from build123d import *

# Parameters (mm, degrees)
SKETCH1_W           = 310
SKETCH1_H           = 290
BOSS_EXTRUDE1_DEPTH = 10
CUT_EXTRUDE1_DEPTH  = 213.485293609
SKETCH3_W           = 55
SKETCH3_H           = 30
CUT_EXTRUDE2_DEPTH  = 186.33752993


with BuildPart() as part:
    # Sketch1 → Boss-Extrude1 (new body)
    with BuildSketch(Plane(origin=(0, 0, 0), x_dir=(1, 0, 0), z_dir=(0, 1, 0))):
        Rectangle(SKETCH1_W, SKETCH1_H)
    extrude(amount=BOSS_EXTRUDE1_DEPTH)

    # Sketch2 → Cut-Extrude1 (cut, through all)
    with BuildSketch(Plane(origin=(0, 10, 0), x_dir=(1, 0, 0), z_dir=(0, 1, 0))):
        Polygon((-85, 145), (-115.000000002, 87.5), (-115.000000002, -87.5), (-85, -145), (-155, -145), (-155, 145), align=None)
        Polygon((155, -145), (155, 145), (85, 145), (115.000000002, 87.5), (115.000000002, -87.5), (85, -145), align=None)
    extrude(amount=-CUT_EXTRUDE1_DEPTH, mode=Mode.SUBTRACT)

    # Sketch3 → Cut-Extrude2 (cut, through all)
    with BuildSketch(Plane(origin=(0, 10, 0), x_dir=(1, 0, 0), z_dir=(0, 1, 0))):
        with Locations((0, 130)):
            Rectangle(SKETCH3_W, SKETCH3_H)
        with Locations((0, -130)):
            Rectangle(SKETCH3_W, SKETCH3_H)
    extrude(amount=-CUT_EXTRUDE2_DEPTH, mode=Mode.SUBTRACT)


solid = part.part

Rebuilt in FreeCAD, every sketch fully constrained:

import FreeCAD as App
import Part
import Sketcher
Q = App.Units.Quantity


def add_polygon(sketch, points):
    """Adds a closed chain of lines whose ends are joined by coincident constraints."""
    first, n = sketch.GeometryCount, len(points)
    for a, b in zip(points, points[1:] + points[:1]):
        sketch.addGeometry(Part.LineSegment(App.Vector(*a, 0), App.Vector(*b, 0)), False)
    for i in range(n):
        sketch.addConstraint(Sketcher.Constraint("Coincident", first + i, 2, first + (i + 1) % n, 1))

doc = App.newDocument("Part")
params = doc.addObject("Spreadsheet::Sheet", "Params")
for row, (alias, value) in enumerate([
    ("sketch1_width", "310 mm"),
    ("sketch1_height", "290 mm"),
    ("pad1_length", "10 mm"),
    ("sketch2_width", "70 mm"),
    ("sketch2_height", "290 mm"),
    ("sketch2_height2", "175 mm"),
    ("sketch3_width", "55 mm"),
    ("sketch3_height", "30 mm"),
], start=1):
    params.set(f"A{row}", alias)
    params.set(f"B{row}", "=" + value)
    params.setAlias(f"B{row}", alias)

body = doc.addObject("PartDesign::Body", "Body")

# Sketch on XZ plane
sketch1 = doc.addObject("Sketcher::SketchObject", "Sketch")
body.addObject(sketch1)
sketch1.AttachmentSupport = (doc.XZ_Plane, [""])
sketch1.MapMode = "FlatFace"
add_polygon(sketch1, [(-155, -145), (-155, 145), (155, 145), (155, -145)])  # lines 0-3
sketch1.addConstraint(Sketcher.Constraint("Vertical", 0))
sketch1.addConstraint(Sketcher.Constraint("Horizontal", 1))
sketch1.addConstraint(Sketcher.Constraint("Vertical", 2))
sketch1.addConstraint(Sketcher.Constraint("Horizontal", 3))
sketch1.addConstraint(Sketcher.Constraint("Symmetric", 0, 2, 2, 2, -1, 1))
sketch1.addConstraint(Sketcher.Constraint("DistanceX", 1, 1, 1, 2, Q("310 mm")))
sketch1.addConstraint(Sketcher.Constraint("DistanceY", 0, 1, 0, 2, Q("290 mm")))
sketch1.setExpression("Constraints[9]", "Params.sketch1_width")
sketch1.setExpression("Constraints[10]", "Params.sketch1_height")
pad1 = doc.addObject("PartDesign::Pad", "Pad")
body.addObject(pad1)
pad1.Profile = sketch1
pad1.setExpression("Length", "Params.pad1_length")
pad1.Reversed = True

# Sketch on XZ plane
sketch2 = doc.addObject("Sketcher::SketchObject", "Sketch001")
body.addObject(sketch2)
sketch2.AttachmentSupport = (doc.XZ_Plane, [""])
sketch2.MapMode = "FlatFace"
sketch2.AttachmentOffset = App.Placement(App.Vector(0, 0, -10), App.Rotation())
add_polygon(sketch2, [(-115, -88), (-85, -145), (-155, -145), (-155, 145), (-85, 145), (-115, 88)])  # lines 0-5
add_polygon(sketch2, [(155, 145), (155, -145), (85, -145), (115, -88), (115, 88), (85, 145)])  # lines 6-11
sketch2.addConstraint(Sketcher.Constraint("Horizontal", 1))
sketch2.addConstraint(Sketcher.Constraint("Vertical", 2))
sketch2.addConstraint(Sketcher.Constraint("Horizontal", 3))
sketch2.addConstraint(Sketcher.Constraint("Vertical", 5))
sketch2.addConstraint(Sketcher.Constraint("Vertical", 6))
sketch2.addConstraint(Sketcher.Constraint("Horizontal", 7))
sketch2.addConstraint(Sketcher.Constraint("Vertical", 9))
sketch2.addConstraint(Sketcher.Constraint("Horizontal", 11))
sketch2.addConstraint(Sketcher.Constraint("Symmetric", 2, 2, 6, 2, -1, 1))
sketch2.addConstraint(Sketcher.Constraint("Symmetric", 4, 2, 8, 2, -1, 1))
sketch2.addConstraint(Sketcher.Constraint("Symmetric", 0, 2, 10, 2, -1, 1))
sketch2.addConstraint(Sketcher.Constraint("Symmetric", 0, 2, 7, 2, -2))
sketch2.addConstraint(Sketcher.Constraint("Parallel", 4, 8))
sketch2.addConstraint(Sketcher.Constraint("Parallel", 0, 10))
sketch2.addConstraint(Sketcher.Constraint("Horizontal", 5, 2, 8, 2))
sketch2.addConstraint(Sketcher.Constraint("DistanceX", 1, 2, 1, 1, Q("70 mm")))
sketch2.addConstraint(Sketcher.Constraint("DistanceY", 2, 1, 2, 2, Q("290 mm")))
sketch2.addConstraint(Sketcher.Constraint("DistanceY", 5, 2, 5, 1, Q("175 mm")))
sketch2.addConstraint(Sketcher.Constraint("DistanceX", 0, 2, -1, 1, Q("85 mm")))
sketch2.addConstraint(Sketcher.Constraint("DistanceX", 4, 2, -1, 1, Q("115 mm")))
sketch2.setExpression("Constraints[27]", "Params.sketch2_width")
sketch2.setExpression("Constraints[28]", "Params.sketch2_height")
sketch2.setExpression("Constraints[29]", "Params.sketch2_height2")
pocket1 = doc.addObject("PartDesign::Pocket", "Pocket")
body.addObject(pocket1)
pocket1.Profile = sketch2
pocket1.Type = "ThroughAll"
pocket1.Reversed = True

# Sketch on XZ plane
sketch3 = doc.addObject("Sketcher::SketchObject", "Sketch002")
body.addObject(sketch3)
sketch3.AttachmentSupport = (doc.XZ_Plane, [""])
sketch3.MapMode = "FlatFace"
sketch3.AttachmentOffset = App.Placement(App.Vector(0, 0, -10), App.Rotation())
add_polygon(sketch3, [(-28, -145), (-28, -115), (28, -115), (28, -145)])  # lines 0-3
add_polygon(sketch3, [(-28, 115), (-28, 145), (28, 145), (28, 115)])  # lines 4-7
sketch3.addConstraint(Sketcher.Constraint("Vertical", 0))
sketch3.addConstraint(Sketcher.Constraint("Horizontal", 1))
sketch3.addConstraint(Sketcher.Constraint("Vertical", 2))
sketch3.addConstraint(Sketcher.Constraint("Horizontal", 3))
sketch3.addConstraint(Sketcher.Constraint("Vertical", 4))
sketch3.addConstraint(Sketcher.Constraint("Horizontal", 5))
sketch3.addConstraint(Sketcher.Constraint("Vertical", 6))
sketch3.addConstraint(Sketcher.Constraint("Horizontal", 7))
sketch3.addConstraint(Sketcher.Constraint("Symmetric", 2, 2, 4, 2, -1, 1))
sketch3.addConstraint(Sketcher.Constraint("Symmetric", 0, 2, 6, 2, -1, 1))
sketch3.addConstraint(Sketcher.Constraint("Vertical", 3, 2, 4, 2))
sketch3.addConstraint(Sketcher.Constraint("DistanceX", 1, 1, 1, 2, Q("55 mm")))
sketch3.addConstraint(Sketcher.Constraint("DistanceY", 0, 1, 0, 2, Q("30 mm")))
sketch3.addConstraint(Sketcher.Constraint("DistanceY", 0, 2, -1, 1, Q("115 mm")))
sketch3.setExpression("Constraints[19]", "Params.sketch3_width")
sketch3.setExpression("Constraints[20]", "Params.sketch3_height")
pocket2 = doc.addObject("PartDesign::Pocket", "Pocket001")
body.addObject(pocket2)
pocket2.Profile = sketch3
pocket2.Type = "ThroughAll"
pocket2.Reversed = True

doc.recompute()
